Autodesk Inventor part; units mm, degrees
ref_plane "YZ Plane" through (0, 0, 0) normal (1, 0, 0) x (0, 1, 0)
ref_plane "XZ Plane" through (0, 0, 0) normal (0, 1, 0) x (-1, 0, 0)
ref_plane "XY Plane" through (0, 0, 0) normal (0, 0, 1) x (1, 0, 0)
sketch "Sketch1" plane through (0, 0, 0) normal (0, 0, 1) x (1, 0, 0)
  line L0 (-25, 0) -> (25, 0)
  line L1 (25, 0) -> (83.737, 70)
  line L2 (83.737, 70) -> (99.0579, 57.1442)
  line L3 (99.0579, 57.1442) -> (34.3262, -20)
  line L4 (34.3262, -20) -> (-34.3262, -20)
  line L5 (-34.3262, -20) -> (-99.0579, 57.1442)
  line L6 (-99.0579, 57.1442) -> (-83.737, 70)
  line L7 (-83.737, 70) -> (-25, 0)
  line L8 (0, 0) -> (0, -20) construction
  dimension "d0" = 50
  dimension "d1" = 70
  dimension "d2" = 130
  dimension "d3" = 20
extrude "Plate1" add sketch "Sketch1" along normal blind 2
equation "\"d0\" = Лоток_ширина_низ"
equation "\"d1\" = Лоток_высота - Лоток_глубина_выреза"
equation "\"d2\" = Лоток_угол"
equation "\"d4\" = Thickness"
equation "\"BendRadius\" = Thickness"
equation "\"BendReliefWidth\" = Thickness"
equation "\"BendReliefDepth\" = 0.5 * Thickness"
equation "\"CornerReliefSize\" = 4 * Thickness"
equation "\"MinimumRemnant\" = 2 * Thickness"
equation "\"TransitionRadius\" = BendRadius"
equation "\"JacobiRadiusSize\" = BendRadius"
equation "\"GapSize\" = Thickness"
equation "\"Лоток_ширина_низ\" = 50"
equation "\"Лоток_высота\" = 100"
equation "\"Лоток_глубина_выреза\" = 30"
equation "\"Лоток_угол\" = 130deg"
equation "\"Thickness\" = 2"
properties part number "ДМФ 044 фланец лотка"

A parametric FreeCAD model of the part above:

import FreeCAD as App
import Part
import Sketcher
Q = App.Units.Quantity


def add_polygon(sketch, points):
    """Adds a closed chain of lines whose ends are joined by coincident constraints."""
    first, n = sketch.GeometryCount, len(points)
    for a, b in zip(points, points[1:] + points[:1]):
        sketch.addGeometry(Part.LineSegment(App.Vector(*a, 0), App.Vector(*b, 0)), False)
    for i in range(n):
        sketch.addConstraint(Sketcher.Constraint("Coincident", first + i, 2, first + (i + 1) % n, 1))

doc = App.newDocument("Part")
body = doc.addObject("PartDesign::Body", "Body")

sketch1 = body.newObject("Sketcher::SketchObject", "Sketch")
sketch1.AttachmentSupport = (doc.getObject("XY_Plane"), [""])
sketch1.MapMode = "FlatFace"
add_polygon(sketch1, [(25, 0), (-25, 0), (-83.737, 70), (-99.0579, 57.1442), (-34.3262, -20), (34.3262, -20), (99.0579, 57.1442), (83.737, 70)])
sketch1.addConstraint(Sketcher.Constraint("Horizontal", 0))
sketch1.addConstraint(Sketcher.Constraint("Horizontal", 4))
sketch1.addConstraint(Sketcher.Constraint("Symmetric", 0, 2, 7, 2, -1, 1))
sketch1.addConstraint(Sketcher.Constraint("Symmetric", 2, 2, 5, 2, -2))
sketch1.addConstraint(Sketcher.Constraint("Symmetric", 1, 2, 6, 2, -2))
sketch1.addConstraint(Sketcher.Constraint("Perpendicular", 1, 2))
sketch1.addConstraint(Sketcher.Constraint("Perpendicular", 2, 3))
sketch1.addConstraint(Sketcher.Constraint("Perpendicular", 5, 6))
sketch1.addConstraint(Sketcher.Constraint("DistanceX", 0, 2, 0, 1, Q("50 mm")))
sketch1.addConstraint(Sketcher.Constraint("Angle", 1, Q("130 deg")))
sketch1.addConstraint(Sketcher.Constraint("Distance", 2, Q("20 mm")))
sketch1.addConstraint(Sketcher.Constraint("DistanceY", -1, 1, 1, 2, Q("70 mm")))
sketch1.addConstraint(Sketcher.Constraint("DistanceY", 3, 2, -1, 1, Q("20 mm")))
pad1 = body.newObject("PartDesign::Pad", "Pad")
pad1.Profile = sketch1
pad1.Length = 2

doc.recompute()
